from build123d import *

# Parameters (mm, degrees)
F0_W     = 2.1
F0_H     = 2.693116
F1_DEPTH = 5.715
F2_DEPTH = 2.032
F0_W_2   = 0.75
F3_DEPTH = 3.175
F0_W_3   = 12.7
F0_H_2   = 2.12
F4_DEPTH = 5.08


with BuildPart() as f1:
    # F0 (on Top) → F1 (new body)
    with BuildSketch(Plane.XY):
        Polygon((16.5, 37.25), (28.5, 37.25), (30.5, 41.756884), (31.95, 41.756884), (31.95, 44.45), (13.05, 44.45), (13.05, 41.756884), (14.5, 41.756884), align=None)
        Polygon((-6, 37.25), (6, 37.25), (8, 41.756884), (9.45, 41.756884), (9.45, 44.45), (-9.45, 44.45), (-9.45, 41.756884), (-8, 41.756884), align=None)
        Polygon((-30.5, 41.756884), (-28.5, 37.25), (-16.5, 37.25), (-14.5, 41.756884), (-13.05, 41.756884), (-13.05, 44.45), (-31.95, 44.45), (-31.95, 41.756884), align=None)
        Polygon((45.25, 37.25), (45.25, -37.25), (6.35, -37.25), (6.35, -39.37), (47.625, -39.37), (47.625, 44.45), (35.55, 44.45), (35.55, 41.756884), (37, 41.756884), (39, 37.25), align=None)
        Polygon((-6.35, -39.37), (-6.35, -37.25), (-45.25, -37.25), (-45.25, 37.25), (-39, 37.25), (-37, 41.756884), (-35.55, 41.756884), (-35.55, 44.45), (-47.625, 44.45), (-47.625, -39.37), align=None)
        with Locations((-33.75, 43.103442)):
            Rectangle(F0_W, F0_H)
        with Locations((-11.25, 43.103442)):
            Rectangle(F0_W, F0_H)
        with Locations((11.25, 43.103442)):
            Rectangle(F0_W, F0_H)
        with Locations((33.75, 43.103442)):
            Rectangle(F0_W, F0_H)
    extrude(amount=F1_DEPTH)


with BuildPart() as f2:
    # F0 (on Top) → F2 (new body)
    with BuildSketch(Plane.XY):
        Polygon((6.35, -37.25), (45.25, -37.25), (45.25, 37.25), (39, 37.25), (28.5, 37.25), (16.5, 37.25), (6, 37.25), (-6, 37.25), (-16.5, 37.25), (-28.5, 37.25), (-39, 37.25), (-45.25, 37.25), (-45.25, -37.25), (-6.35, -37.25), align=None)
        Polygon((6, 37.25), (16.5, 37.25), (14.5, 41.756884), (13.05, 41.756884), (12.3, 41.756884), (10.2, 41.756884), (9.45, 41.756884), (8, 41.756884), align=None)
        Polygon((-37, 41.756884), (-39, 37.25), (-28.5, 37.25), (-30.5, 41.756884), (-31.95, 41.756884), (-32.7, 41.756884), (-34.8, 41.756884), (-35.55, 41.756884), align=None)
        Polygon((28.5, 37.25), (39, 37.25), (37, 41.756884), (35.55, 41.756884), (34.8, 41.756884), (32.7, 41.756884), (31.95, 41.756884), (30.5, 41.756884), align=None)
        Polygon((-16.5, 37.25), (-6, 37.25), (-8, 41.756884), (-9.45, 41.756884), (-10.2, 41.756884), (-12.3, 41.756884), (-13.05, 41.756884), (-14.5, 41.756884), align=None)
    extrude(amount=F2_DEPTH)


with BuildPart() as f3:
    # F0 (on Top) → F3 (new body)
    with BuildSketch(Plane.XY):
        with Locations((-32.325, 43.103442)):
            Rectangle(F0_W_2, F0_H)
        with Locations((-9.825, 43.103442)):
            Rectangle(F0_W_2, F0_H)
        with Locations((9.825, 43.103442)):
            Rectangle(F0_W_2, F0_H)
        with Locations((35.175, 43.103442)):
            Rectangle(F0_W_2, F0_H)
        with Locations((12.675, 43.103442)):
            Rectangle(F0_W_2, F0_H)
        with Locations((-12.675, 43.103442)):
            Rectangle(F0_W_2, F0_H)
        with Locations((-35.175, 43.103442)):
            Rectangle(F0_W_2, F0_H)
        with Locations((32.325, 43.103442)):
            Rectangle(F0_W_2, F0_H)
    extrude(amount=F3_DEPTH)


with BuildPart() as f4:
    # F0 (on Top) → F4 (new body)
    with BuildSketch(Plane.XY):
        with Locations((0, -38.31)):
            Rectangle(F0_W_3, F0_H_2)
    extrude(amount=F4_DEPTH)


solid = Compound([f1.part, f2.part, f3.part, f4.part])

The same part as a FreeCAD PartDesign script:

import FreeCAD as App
import Part
import Sketcher
from FreeCAD import Vector
Q = App.Units.Quantity


def add_polygon(sketch, points):
    """Adds a closed chain of lines whose ends are joined by coincident constraints."""
    first, n = sketch.GeometryCount, len(points)
    for a, b in zip(points, points[1:] + points[:1]):
        sketch.addGeometry(Part.LineSegment(App.Vector(*a, 0), App.Vector(*b, 0)), False)
    for i in range(n):
        sketch.addConstraint(Sketcher.Constraint("Coincident", first + i, 2, first + (i + 1) % n, 1))

doc = App.newDocument("Part")
body = doc.addObject("PartDesign::Body", "Body")
body.AllowCompound = True

# Sketch on XY plane
sketch1 = doc.addObject("Sketcher::SketchObject", "Sketch")
body.addObject(sketch1)
sketch1.AttachmentSupport = (doc.XY_Plane, [""])
sketch1.MapMode = "FlatFace"
add_polygon(sketch1, [(16.5, 37.25), (28.5, 37.25), (30.5, 41.756884), (31.95, 41.756884), (31.95, 44.45), (13.05, 44.45), (13.05, 41.756884), (14.5, 41.756884)])  # lines 0-7
add_polygon(sketch1, [(-6, 37.25), (6, 37.25), (8, 41.756884), (9.45, 41.756884), (9.45, 44.45), (-9.45, 44.45), (-9.45, 41.756884), (-8, 41.756884)])  # lines 8-15
add_polygon(sketch1, [(-30.5, 41.756884), (-28.5, 37.25), (-16.5, 37.25), (-14.5, 41.756884), (-13.05, 41.756884), (-13.05, 44.45), (-31.95, 44.45), (-31.95, 41.756884)])  # lines 16-23
add_polygon(sketch1, [(45.25, 37.25), (45.25, -37.25), (6.35, -37.25), (6.35, -39.37), (47.625, -39.37), (47.625, 44.45), (35.55, 44.45), (35.55, 41.756884), (37, 41.756884), (39, 37.25)])  # lines 24-33
add_polygon(sketch1, [(-6.35, -39.37), (-6.35, -37.25), (-45.25, -37.25), (-45.25, 37.25), (-39, 37.25), (-37, 41.756884), (-35.55, 41.756884), (-35.55, 44.45), (-47.625, 44.45), (-47.625, -39.37)])  # lines 34-43
add_polygon(sketch1, [(-34.8, 44.45), (-34.8, 41.756884), (-32.7, 41.756884), (-32.7, 44.45)])  # lines 44-47
add_polygon(sketch1, [(-12.3, 44.45), (-12.3, 41.756884), (-10.2, 41.756884), (-10.2, 44.45)])  # lines 48-51
add_polygon(sketch1, [(10.2, 44.45), (10.2, 41.756884), (12.3, 41.756884), (12.3, 44.45)])  # lines 52-55
add_polygon(sketch1, [(32.7, 44.45), (32.7, 41.756884), (34.8, 41.756884), (34.8, 44.45)])  # lines 56-59
sketch1.addConstraint([
    Sketcher.Constraint("Horizontal", 0),
    Sketcher.Constraint("Horizontal", 2),
    Sketcher.Constraint("Vertical", 3),
    Sketcher.Constraint("Horizontal", 4),
    Sketcher.Constraint("Vertical", 5),
    Sketcher.Constraint("Horizontal", 6),
    Sketcher.Constraint("Horizontal", 8),
    Sketcher.Constraint("Horizontal", 10),
    Sketcher.Constraint("Vertical", 11),
    Sketcher.Constraint("Horizontal", 12),
    Sketcher.Constraint("Vertical", 13),
    Sketcher.Constraint("Horizontal", 14),
    Sketcher.Constraint("Horizontal", 17),
    Sketcher.Constraint("Horizontal", 19),
    Sketcher.Constraint("Vertical", 20),
    Sketcher.Constraint("Horizontal", 21),
    Sketcher.Constraint("Vertical", 22),
    Sketcher.Constraint("Horizontal", 23),
    Sketcher.Constraint("Vertical", 24),
    Sketcher.Constraint("Horizontal", 25),
    Sketcher.Constraint("Vertical", 26),
    Sketcher.Constraint("Horizontal", 27),
    Sketcher.Constraint("Vertical", 28),
    Sketcher.Constraint("Horizontal", 29),
    Sketcher.Constraint("Vertical", 30),
    Sketcher.Constraint("Horizontal", 31),
    Sketcher.Constraint("Horizontal", 33),
    Sketcher.Constraint("Vertical", 34),
    Sketcher.Constraint("Horizontal", 35),
    Sketcher.Constraint("Vertical", 36),
    Sketcher.Constraint("Horizontal", 37),
    Sketcher.Constraint("Horizontal", 39),
    Sketcher.Constraint("Vertical", 40),
    Sketcher.Constraint("Horizontal", 41),
    Sketcher.Constraint("Vertical", 42),
    Sketcher.Constraint("Horizontal", 43),
    Sketcher.Constraint("Vertical", 44),
    Sketcher.Constraint("Horizontal", 45),
    Sketcher.Constraint("Vertical", 46),
    Sketcher.Constraint("Horizontal", 47),
    Sketcher.Constraint("Vertical", 48),
    Sketcher.Constraint("Horizontal", 49),
    Sketcher.Constraint("Vertical", 50),
    Sketcher.Constraint("Horizontal", 51),
    Sketcher.Constraint("Vertical", 52),
    Sketcher.Constraint("Horizontal", 53),
    Sketcher.Constraint("Vertical", 54),
    Sketcher.Constraint("Horizontal", 55),
    Sketcher.Constraint("Vertical", 56),
    Sketcher.Constraint("Horizontal", 57),
    Sketcher.Constraint("Vertical", 58),
    Sketcher.Constraint("Horizontal", 59),
    Sketcher.Constraint("Symmetric", 33, 2, 35, 2, -1, 1),
    Sketcher.Constraint("Symmetric", 10, 2, 13, 2, -2),
    Sketcher.Constraint("Symmetric", 0, 2, 16, 2, -2),
    Sketcher.Constraint("Symmetric", 6, 2, 18, 2, -2),
    Sketcher.Constraint("Symmetric", 4, 2, 20, 2, -2),
    Sketcher.Constraint("Symmetric", 2, 2, 22, 2, -2),
    Sketcher.Constraint("Symmetric", 25, 2, 34, 2, -2),
    Sketcher.Constraint("Symmetric", 32, 2, 37, 2, -2),
    Sketcher.Constraint("Symmetric", 31, 2, 38, 2, -2),
    Sketcher.Constraint("Symmetric", 29, 2, 40, 2, -2),
    Sketcher.Constraint("Symmetric", 27, 2, 42, 2, -2),
    Sketcher.Constraint("Symmetric", 49, 2, 52, 2, -2),
    Sketcher.Constraint("Symmetric", 51, 2, 54, 2, -2),
    Sketcher.Constraint("Symmetric", 45, 2, 56, 2, -2),
    Sketcher.Constraint("Symmetric", 47, 2, 58, 2, -2),
    Sketcher.Constraint("Parallel", 1, 9),
    Sketcher.Constraint("Parallel", 7, 15),
    Sketcher.Constraint("Parallel", 15, 16),
    Sketcher.Constraint("Parallel", 9, 18),
    Sketcher.Constraint("Parallel", 16, 32),
    Sketcher.Constraint("Parallel", 18, 38),
    Sketcher.Constraint("Horizontal", 2, 2, 5, 2),
    Sketcher.Constraint("Horizontal", 7, 2, 8, 2),
    Sketcher.Constraint("Horizontal", 6, 2, 9, 2),
    Sketcher.Constraint("Horizontal", 4, 2, 11, 2),
    Sketcher.Constraint("Horizontal", 21, 2, 28, 2),
    Sketcher.Constraint("Horizontal", 23, 2, 30, 2),
    Sketcher.Constraint("Horizontal", 17, 2, 32, 2),
    Sketcher.Constraint("Horizontal", 39, 2, 44, 2),
    Sketcher.Constraint("Horizontal", 41, 2, 46, 2),
    Sketcher.Constraint("Horizontal", 45, 2, 48, 2),
    Sketcher.Constraint("Horizontal", 47, 2, 50, 2),
    Sketcher.Constraint("Equal", 2, 6),
    Sketcher.Constraint("Equal", 0, 8),
    Sketcher.Constraint("Equal", 6, 10),
    Sketcher.Constraint("Equal", 4, 12),
    Sketcher.Constraint("Equal", 23, 31),
    Sketcher.Constraint("Equal", 47, 49),
    Sketcher.Constraint("DistanceX", 0, 1, 0, 2, Q("12 mm")),
    Sketcher.Constraint("DistanceX", 4, 2, 4, 1, Q("18.9 mm")),
    Sketcher.Constraint("DistanceX", 25, 2, 25, 1, Q("38.9 mm")),
    Sketcher.Constraint("DistanceX", 45, 1, 45, 2, Q("2.1 mm")),
    Sketcher.Constraint("DistanceY", 24, 2, 24, 1, Q("74.5 mm")),
    Sketcher.Constraint("DistanceX", -1, 1, 9, 2, Q("8 mm")),
    Sketcher.Constraint("DistanceX", -1, 1, 31, 2, Q("37 mm")),
    Sketcher.Constraint("DistanceX", 33, 1, 33, 2, Q("6.25 mm")),
    Sketcher.Constraint("DistanceY", 26, 2, 26, 1, Q("2.12 mm")),
    Sketcher.Constraint("DistanceY", 28, 1, 28, 2, Q("83.82 mm")),
    Sketcher.Constraint("DistanceX", -1, 1, 0, 2, Q("28.5 mm")),
    Sketcher.Constraint("DistanceX", 44, 2, -1, 1, Q("34.8 mm")),
    Sketcher.Constraint("DistanceX", 48, 2, -1, 1, Q("12.3 mm")),
    Sketcher.Constraint("Angle", 1, Q("66.069999 deg")),
    Sketcher.Constraint("DistanceX", 27, 1, 27, 2, Q("41.275 mm")),
])
pad1 = doc.addObject("PartDesign::Pad", "Pad")
body.addObject(pad1)
pad1.Profile = sketch1
pad1.Length = 5.715
body2 = doc.addObject("PartDesign::Body", "Body001")

# Sketch on XY plane
sketch2 = doc.addObject("Sketcher::SketchObject", "Sketch001")
body2.addObject(sketch2)
sketch2.AttachmentSupport = (doc.getObject("XY_Plane001"), [""])
sketch2.MapMode = "FlatFace"
add_polygon(sketch2, [(45.25, -37.25), (45.25, 37.25), (39, 37.25), (37, 41.756884), (30.5, 41.756884), (28.5, 37.25), (16.5, 37.25), (14.5, 41.756884), (8, 41.756884), (6, 37.25), (-6, 37.25), (-8, 41.756884), (-14.5, 41.756884), (-16.5, 37.25), (-28.5, 37.25), (-30.5, 41.756884), (-37, 41.756884), (-39, 37.25), (-45.25, 37.25), (-45.25, -37.25)])  # lines 0-19
sketch2.addConstraint([
    Sketcher.Constraint("Vertical", 0),
    Sketcher.Constraint("Horizontal", 1),
    Sketcher.Constraint("Horizontal", 3),
    Sketcher.Constraint("Horizontal", 5),
    Sketcher.Constraint("Horizontal", 7),
    Sketcher.Constraint("Horizontal", 9),
    Sketcher.Constraint("Horizontal", 11),
    Sketcher.Constraint("Horizontal", 13),
    Sketcher.Constraint("Horizontal", 15),
    Sketcher.Constraint("Horizontal", 17),
    Sketcher.Constraint("Vertical", 18),
    Sketcher.Constraint("Horizontal", 19),
    Sketcher.Constraint("Symmetric", 0, 2, 18, 2, -1, 1),
    Sketcher.Constraint("Symmetric", 7, 2, 10, 2, -2),
    Sketcher.Constraint("Symmetric", 5, 2, 12, 2, -2),
    Sketcher.Constraint("Symmetric", 3, 2, 14, 2, -2),
    Sketcher.Constraint("Symmetric", 1, 2, 16, 2, -2),
    Sketcher.Constraint("Parallel", 2, 6),
    Sketcher.Constraint("Parallel", 4, 8),
    Sketcher.Constraint("Parallel", 6, 10),
    Sketcher.Constraint("Parallel", 8, 12),
    Sketcher.Constraint("Parallel", 10, 14),
    Sketcher.Constraint("Parallel", 12, 16),
    Sketcher.Constraint("Horizontal", 1, 2, 4, 2),
    Sketcher.Constraint("Horizontal", 3, 2, 6, 2),
    Sketcher.Constraint("Horizontal", 5, 2, 8, 2),
    Sketcher.Constraint("Equal", 3, 7),
    Sketcher.Constraint("Equal", 5, 9),
    Sketcher.Constraint("Equal", 7, 11),
    Sketcher.Constraint("DistanceX", 5, 2, 5, 1, Q("12 mm")),
    Sketcher.Constraint("DistanceX", 3, 2, 3, 1, Q("6.5 mm")),
    Sketcher.Constraint("DistanceX", 19, 1, 19, 2, Q("90.5 mm")),
    Sketcher.Constraint("DistanceY", 0, 1, 0, 2, Q("74.5 mm")),
    Sketcher.Constraint("DistanceX", -1, 1, 1, 2, Q("39 mm")),
    Sketcher.Constraint("Angle", 2, Q("113.930001 deg")),
])
pad2 = doc.addObject("PartDesign::Pad", "Pad001")
body2.addObject(pad2)
pad2.Profile = sketch2
pad2.Length = 2.032
body3 = doc.addObject("PartDesign::Body", "Body002")
body3.AllowCompound = True

# Sketch on XY plane
sketch3 = doc.addObject("Sketcher::SketchObject", "Sketch002")
body3.addObject(sketch3)
sketch3.AttachmentSupport = (doc.getObject("XY_Plane002"), [""])
sketch3.MapMode = "FlatFace"
add_polygon(sketch3, [(-32.7, 44.45), (-32.7, 41.756884), (-31.95, 41.756884), (-31.95, 44.45)])  # lines 0-3
add_polygon(sketch3, [(-10.2, 44.45), (-10.2, 41.756884), (-9.45, 41.756884), (-9.45, 44.45)])  # lines 4-7
add_polygon(sketch3, [(9.45, 44.45), (9.45, 41.756884), (10.2, 41.756884), (10.2, 44.45)])  # lines 8-11
add_polygon(sketch3, [(34.8, 44.45), (34.8, 41.756884), (35.55, 41.756884), (35.55, 44.45)])  # lines 12-15
add_polygon(sketch3, [(12.3, 44.45), (12.3, 41.756884), (13.05, 41.756884), (13.05, 44.45)])  # lines 16-19
add_polygon(sketch3, [(-13.05, 44.45), (-13.05, 41.756884), (-12.3, 41.756884), (-12.3, 44.45)])  # lines 20-23
add_polygon(sketch3, [(-35.55, 44.45), (-35.55, 41.756884), (-34.8, 41.756884), (-34.8, 44.45)])  # lines 24-27
add_polygon(sketch3, [(31.95, 44.45), (31.95, 41.756884), (32.7, 41.756884), (32.7, 44.45)])  # lines 28-31
sketch3.addConstraint([
    Sketcher.Constraint("Vertical", 0),
    Sketcher.Constraint("Horizontal", 1),
    Sketcher.Constraint("Vertical", 2),
    Sketcher.Constraint("Horizontal", 3),
    Sketcher.Constraint("Vertical", 4),
    Sketcher.Constraint("Horizontal", 5),
    Sketcher.Constraint("Vertical", 6),
    Sketcher.Constraint("Horizontal", 7),
    Sketcher.Constraint("Vertical", 8),
    Sketcher.Constraint("Horizontal", 9),
    Sketcher.Constraint("Vertical", 10),
    Sketcher.Constraint("Horizontal", 11),
    Sketcher.Constraint("Vertical", 12),
    Sketcher.Constraint("Horizontal", 13),
    Sketcher.Constraint("Vertical", 14),
    Sketcher.Constraint("Horizontal", 15),
    Sketcher.Constraint("Vertical", 16),
    Sketcher.Constraint("Horizontal", 17),
    Sketcher.Constraint("Vertical", 18),
    Sketcher.Constraint("Horizontal", 19),
    Sketcher.Constraint("Vertical", 20),
    Sketcher.Constraint("Horizontal", 21),
    Sketcher.Constraint("Vertical", 22),
    Sketcher.Constraint("Horizontal", 23),
    Sketcher.Constraint("Vertical", 24),
    Sketcher.Constraint("Horizontal", 25),
    Sketcher.Constraint("Vertical", 26),
    Sketcher.Constraint("Horizontal", 27),
    Sketcher.Constraint("Vertical", 28),
    Sketcher.Constraint("Horizontal", 29),
    Sketcher.Constraint("Vertical", 30),
    Sketcher.Constraint("Horizontal", 31),
    Sketcher.Constraint("Symmetric", 5, 2, 8, 2, -2),
    Sketcher.Constraint("Symmetric", 7, 2, 10, 2, -2),
    Sketcher.Constraint("Symmetric", 17, 2, 20, 2, -2),
    Sketcher.Constraint("Symmetric", 19, 2, 22, 2, -2),
    Sketcher.Constraint("Symmetric", 13, 2, 24, 2, -2),
    Sketcher.Constraint("Symmetric", 15, 2, 26, 2, -2),
    Sketcher.Constraint("Symmetric", 1, 2, 28, 2, -2),
    Sketcher.Constraint("Symmetric", 3, 2, 30, 2, -2),
    Sketcher.Constraint("Horizontal", 1, 2, 4, 2),
    Sketcher.Constraint("Horizontal", 3, 2, 6, 2),
    Sketcher.Constraint("Horizontal", 9, 2, 12, 2),
    Sketcher.Constraint("Horizontal", 11, 2, 14, 2),
    Sketcher.Constraint("Horizontal", 13, 2, 16, 2),
    Sketcher.Constraint("Horizontal", 15, 2, 18, 2),
    Sketcher.Constraint("Equal", 3, 5),
    Sketcher.Constraint("Equal", 11, 13),
    Sketcher.Constraint("Equal", 15, 17),
    Sketcher.Constraint("DistanceX", 1, 1, 1, 2, Q("0.75 mm")),
    Sketcher.Constraint("DistanceX", 0, 2, -1, 1, Q("32.7 mm")),
    Sketcher.Constraint("DistanceX", 4, 2, -1, 1, Q("10.2 mm")),
    Sketcher.Constraint("DistanceX", -1, 1, 12, 2, Q("34.8 mm")),
    Sketcher.Constraint("DistanceX", -1, 1, 16, 2, Q("12.3 mm")),
    Sketcher.Constraint("DistanceY", -1, 1, 2, 2, Q("44.45 mm")),
    Sketcher.Constraint("DistanceY", 0, 2, 0, 1, Q("2.693116 mm")),
])
pad3 = doc.addObject("PartDesign::Pad", "Pad002")
body3.addObject(pad3)
pad3.Profile = sketch3
pad3.Length = 3.175
body4 = doc.addObject("PartDesign::Body", "Body003")

# Sketch on XY plane
sketch4 = doc.addObject("Sketcher::SketchObject", "Sketch003")
body4.addObject(sketch4)
sketch4.AttachmentSupport = (doc.getObject("XY_Plane003"), [""])
sketch4.MapMode = "FlatFace"
add_polygon(sketch4, [(-6.35, -37.25), (-6.35, -39.37), (6.35, -39.37), (6.35, -37.25)])  # lines 0-3
sketch4.addConstraint([
    Sketcher.Constraint("Vertical", 0),
    Sketcher.Constraint("Horizontal", 1),
    Sketcher.Constraint("Vertical", 2),
    Sketcher.Constraint("Horizontal", 3),
    Sketcher.Constraint("DistanceX", 1, 1, 1, 2, Q("12.7 mm")),
    Sketcher.Constraint("DistanceY", 0, 2, 0, 1, Q("2.12 mm")),
    Sketcher.Constraint("DistanceX", 0, 2, -1, 1, Q("6.35 mm")),
    Sketcher.Constraint("DistanceY", 0, 2, -1, 1, Q("39.37 mm")),
])
pad4 = doc.addObject("PartDesign::Pad", "Pad003")
body4.addObject(pad4)
pad4.Profile = sketch4
pad4.Length = 5.08

doc.recompute()
